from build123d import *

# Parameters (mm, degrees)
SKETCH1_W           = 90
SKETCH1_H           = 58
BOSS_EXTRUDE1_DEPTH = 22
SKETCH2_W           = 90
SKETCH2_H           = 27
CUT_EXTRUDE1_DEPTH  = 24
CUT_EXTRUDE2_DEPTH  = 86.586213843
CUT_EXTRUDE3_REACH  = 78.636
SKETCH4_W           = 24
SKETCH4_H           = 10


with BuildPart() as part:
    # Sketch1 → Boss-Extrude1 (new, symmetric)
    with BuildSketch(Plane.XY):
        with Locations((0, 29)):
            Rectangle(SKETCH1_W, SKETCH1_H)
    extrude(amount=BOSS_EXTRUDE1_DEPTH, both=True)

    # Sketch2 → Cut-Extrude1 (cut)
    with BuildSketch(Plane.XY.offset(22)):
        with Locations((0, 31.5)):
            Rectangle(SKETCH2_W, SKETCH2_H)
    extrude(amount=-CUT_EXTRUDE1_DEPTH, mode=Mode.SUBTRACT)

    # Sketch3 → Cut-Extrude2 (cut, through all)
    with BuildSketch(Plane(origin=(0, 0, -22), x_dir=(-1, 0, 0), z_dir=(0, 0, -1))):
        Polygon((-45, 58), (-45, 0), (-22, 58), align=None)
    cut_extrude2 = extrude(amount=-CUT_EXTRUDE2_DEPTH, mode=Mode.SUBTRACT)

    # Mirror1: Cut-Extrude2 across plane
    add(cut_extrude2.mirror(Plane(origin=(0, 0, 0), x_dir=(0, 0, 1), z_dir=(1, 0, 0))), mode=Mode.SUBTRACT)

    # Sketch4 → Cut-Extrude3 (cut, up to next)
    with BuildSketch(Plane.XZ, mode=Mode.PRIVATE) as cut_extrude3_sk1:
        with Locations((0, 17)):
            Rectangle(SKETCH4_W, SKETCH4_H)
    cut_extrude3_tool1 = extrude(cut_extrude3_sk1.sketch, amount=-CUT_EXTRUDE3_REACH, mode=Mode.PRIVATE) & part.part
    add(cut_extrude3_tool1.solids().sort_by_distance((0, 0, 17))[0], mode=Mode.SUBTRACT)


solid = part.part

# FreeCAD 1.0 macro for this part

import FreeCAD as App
import Part
import Sketcher


def add_polygon(sketch, points):
    """Adds a closed chain of lines whose ends are joined by coincident constraints."""
    first, n = sketch.GeometryCount, len(points)
    for a, b in zip(points, points[1:] + points[:1]):
        sketch.addGeometry(Part.LineSegment(App.Vector(*a, 0), App.Vector(*b, 0)), False)
    for i in range(n):
        sketch.addConstraint(Sketcher.Constraint("Coincident", first + i, 2, first + (i + 1) % n, 1))

doc = App.newDocument("Part")
params = doc.addObject("Spreadsheet::Sheet", "Params")
for row, (alias, value) in enumerate([
    ("sketch1_width", "90 mm"),
    ("sketch1_height", "58 mm"),
    ("pad1_length", "44 mm"),
    ("sketch2_width", "90 mm"),
    ("sketch2_height", "27 mm"),
    ("pocket1_length", "24 mm"),
    ("sketch3_width", "23 mm"),
    ("sketch3_height", "58 mm"),
    ("sketch4_width", "24 mm"),
    ("sketch4_height", "10 mm"),
], start=1):
    params.set(f"A{row}", alias)
    params.set(f"B{row}", "=" + value)
    params.setAlias(f"B{row}", alias)

body = doc.addObject("PartDesign::Body", "Body")

# Sketch on XY plane
sketch1 = doc.addObject("Sketcher::SketchObject", "Sketch")
body.addObject(sketch1)
sketch1.AttachmentSupport = (doc.XY_Plane, [""])
sketch1.MapMode = "FlatFace"
add_polygon(sketch1, [(-45, 58), (-45, 0), (45, 0), (45, 58)])  # lines 0-3
sketch1.addConstraint([
    Sketcher.Constraint("Vertical", 0),
    Sketcher.Constraint("Horizontal", 1),
    Sketcher.Constraint("Vertical", 2),
    Sketcher.Constraint("Horizontal", 3),
    Sketcher.Constraint("Symmetric", 0, 2, 1, 2, -1, 1),
    Sketcher.Constraint("DistanceX", 1, 1, 1, 2, 90.0),
    Sketcher.Constraint("DistanceY", 0, 2, 0, 1, 58.0),
])
sketch1.setExpression("Constraints[9]", "Params.sketch1_width")
sketch1.setExpression("Constraints[10]", "Params.sketch1_height")
pad1 = doc.addObject("PartDesign::Pad", "Pad")
body.addObject(pad1)
pad1.Profile = sketch1
pad1.setExpression("Length", "Params.pad1_length")
pad1.Midplane = True

# Sketch on XY plane
sketch2 = doc.addObject("Sketcher::SketchObject", "Sketch001")
body.addObject(sketch2)
sketch2.AttachmentSupport = (doc.XY_Plane, [""])
sketch2.MapMode = "FlatFace"
sketch2.AttachmentOffset = App.Placement(App.Vector(0, 0, 22), App.Rotation())
add_polygon(sketch2, [(-45, 45), (-45, 18), (45, 18), (45, 45)])  # lines 0-3
sketch2.addConstraint([
    Sketcher.Constraint("Vertical", 0),
    Sketcher.Constraint("Horizontal", 1),
    Sketcher.Constraint("Vertical", 2),
    Sketcher.Constraint("Horizontal", 3),
    Sketcher.Constraint("DistanceX", 1, 1, 1, 2, 90.0),
    Sketcher.Constraint("DistanceY", 0, 2, 0, 1, 27.0),
    Sketcher.Constraint("DistanceX", 0, 2, -1, 1, 45.0),
    Sketcher.Constraint("DistanceY", -1, 1, 0, 2, 18.0),
])
sketch2.setExpression("Constraints[8]", "Params.sketch2_width")
sketch2.setExpression("Constraints[9]", "Params.sketch2_height")
pocket1 = doc.addObject("PartDesign::Pocket", "Pocket")
body.addObject(pocket1)
pocket1.Profile = sketch2
pocket1.setExpression("Length", "Params.pocket1_length")

# Sketch on XY plane
sketch3 = doc.addObject("Sketcher::SketchObject", "Sketch002")
body.addObject(sketch3)
sketch3.AttachmentSupport = (doc.XY_Plane, [""])
sketch3.MapMode = "FlatFace"
sketch3.AttachmentOffset = App.Placement(App.Vector(0, 0, -22), App.Rotation())
add_polygon(sketch3, [(45, 58), (45, 0), (22, 58)])  # lines 0-2
sketch3.addConstraint([
    Sketcher.Constraint("Vertical", 0),
    Sketcher.Constraint("Horizontal", 2),
    Sketcher.Constraint("PointOnObject", 0, 2, -1),
    Sketcher.Constraint("DistanceX", 2, 1, 2, 2, 23.0),
    Sketcher.Constraint("DistanceY", 0, 2, 0, 1, 58.0),
    Sketcher.Constraint("DistanceX", -1, 1, 0, 2, 45.0),
])
sketch3.setExpression("Constraints[6]", "Params.sketch3_width")
sketch3.setExpression("Constraints[7]", "Params.sketch3_height")
pocket2 = doc.addObject("PartDesign::Pocket", "Pocket001")
body.addObject(pocket2)
pocket2.Profile = sketch3
pocket2.Type = "ThroughAll"
pocket2.Reversed = True
doc.recompute()

mirrored = doc.addObject("PartDesign::Mirrored", "Mirrored")
body.addObject(mirrored)
mirrored.Originals = [pocket2]
mirrored.MirrorPlane = (doc.YZ_Plane, [""])
body.Tip = mirrored

# Sketch on XZ plane
sketch4 = doc.addObject("Sketcher::SketchObject", "Sketch003")
body.addObject(sketch4)
sketch4.AttachmentSupport = (doc.XZ_Plane, [""])
sketch4.MapMode = "FlatFace"
add_polygon(sketch4, [(-12, 22), (-12, 12), (12, 12), (12, 22)])  # lines 0-3
sketch4.addConstraint([
    Sketcher.Constraint("Vertical", 0),
    Sketcher.Constraint("Horizontal", 1),
    Sketcher.Constraint("Vertical", 2),
    Sketcher.Constraint("Horizontal", 3),
    Sketcher.Constraint("DistanceX", 1, 1, 1, 2, 24.0),
    Sketcher.Constraint("DistanceY", 0, 2, 0, 1, 10.0),
    Sketcher.Constraint("DistanceX", 0, 2, -1, 1, 12.0),
    Sketcher.Constraint("DistanceY", -1, 1, 0, 2, 12.0),
])
sketch4.setExpression("Constraints[8]", "Params.sketch4_width")
sketch4.setExpression("Constraints[9]", "Params.sketch4_height")
pocket3 = doc.addObject("PartDesign::Pocket", "Pocket002")
body.addObject(pocket3)
pocket3.Profile = sketch4
pocket3.Type = "UpToFirst"

doc.recompute()
